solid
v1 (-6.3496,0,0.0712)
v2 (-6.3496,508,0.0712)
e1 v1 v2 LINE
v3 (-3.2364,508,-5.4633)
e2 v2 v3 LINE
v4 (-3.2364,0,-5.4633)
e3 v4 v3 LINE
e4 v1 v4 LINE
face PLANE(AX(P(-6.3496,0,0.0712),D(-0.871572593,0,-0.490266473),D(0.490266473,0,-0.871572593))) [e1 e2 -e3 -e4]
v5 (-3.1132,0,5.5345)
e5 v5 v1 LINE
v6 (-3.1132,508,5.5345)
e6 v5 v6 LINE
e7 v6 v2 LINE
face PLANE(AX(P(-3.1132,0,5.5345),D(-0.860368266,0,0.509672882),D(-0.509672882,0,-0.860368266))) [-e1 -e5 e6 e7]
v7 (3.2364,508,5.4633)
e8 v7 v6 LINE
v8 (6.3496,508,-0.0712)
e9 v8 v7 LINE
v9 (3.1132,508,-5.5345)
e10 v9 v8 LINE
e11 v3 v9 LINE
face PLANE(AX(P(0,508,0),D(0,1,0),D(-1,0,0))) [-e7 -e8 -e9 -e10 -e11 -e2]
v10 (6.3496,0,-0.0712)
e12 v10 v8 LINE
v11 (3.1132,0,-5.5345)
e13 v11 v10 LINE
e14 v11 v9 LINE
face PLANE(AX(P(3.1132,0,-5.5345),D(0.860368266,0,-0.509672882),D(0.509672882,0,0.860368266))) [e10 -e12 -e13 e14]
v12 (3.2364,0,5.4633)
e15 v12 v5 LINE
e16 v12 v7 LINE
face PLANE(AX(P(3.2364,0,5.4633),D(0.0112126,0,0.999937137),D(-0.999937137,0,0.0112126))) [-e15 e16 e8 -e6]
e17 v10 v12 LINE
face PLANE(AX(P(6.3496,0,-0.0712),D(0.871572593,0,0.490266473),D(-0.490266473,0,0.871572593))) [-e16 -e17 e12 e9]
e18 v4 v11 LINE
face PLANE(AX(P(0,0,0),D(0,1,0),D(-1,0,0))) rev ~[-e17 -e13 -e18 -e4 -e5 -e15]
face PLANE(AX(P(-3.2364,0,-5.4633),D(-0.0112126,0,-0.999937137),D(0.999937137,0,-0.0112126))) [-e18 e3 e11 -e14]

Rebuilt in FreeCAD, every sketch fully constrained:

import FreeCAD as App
import Part
import Sketcher
Q = App.Units.Quantity


def add_polygon(sketch, points):
    """Adds a closed chain of lines whose ends are joined by coincident constraints."""
    first, n = sketch.GeometryCount, len(points)
    for a, b in zip(points, points[1:] + points[:1]):
        sketch.addGeometry(Part.LineSegment(App.Vector(*a, 0), App.Vector(*b, 0)), False)
    for i in range(n):
        sketch.addConstraint(Sketcher.Constraint("Coincident", first + i, 2, first + (i + 1) % n, 1))

doc = App.newDocument("Part")
body = doc.addObject("PartDesign::Body", "Body")

# Sketch on XZ plane
sketch1 = doc.addObject("Sketcher::SketchObject", "Sketch")
body.addObject(sketch1)
sketch1.AttachmentSupport = (doc.XZ_Plane, [""])
sketch1.MapMode = "FlatFace"
add_polygon(sketch1, [(-3, -5), (-6, 0), (-3, 6), (3, 5), (6, 0), (3, -6)])  # lines 0-5
sketch1.addConstraint([
    Sketcher.Constraint("Symmetric", 0, 2, 3, 2, -1, 1),
    Sketcher.Constraint("Symmetric", 1, 2, 4, 2, -1, 1),
    Sketcher.Constraint("Symmetric", 2, 2, 5, 2, -1, 1),
    Sketcher.Constraint("Equal", 0, 1),
    Sketcher.Constraint("Equal", 1, 2),
    Sketcher.Constraint("Distance", 0, Q("0.25 in")),
    Sketcher.Constraint("DistanceY", -1, 1, 0, 2, Q("0.0028 in")),
    Sketcher.Constraint("DistanceY", -1, 1, 1, 2, Q("0.2179 in")),
    Sketcher.Constraint("DistanceY", -1, 1, 2, 2, Q("0.2151 in")),
])
pad1 = doc.addObject("PartDesign::Pad", "Pad")
body.addObject(pad1)
pad1.Profile = sketch1
pad1.Length = Q("20 in")
pad1.Reversed = True

doc.recompute()
